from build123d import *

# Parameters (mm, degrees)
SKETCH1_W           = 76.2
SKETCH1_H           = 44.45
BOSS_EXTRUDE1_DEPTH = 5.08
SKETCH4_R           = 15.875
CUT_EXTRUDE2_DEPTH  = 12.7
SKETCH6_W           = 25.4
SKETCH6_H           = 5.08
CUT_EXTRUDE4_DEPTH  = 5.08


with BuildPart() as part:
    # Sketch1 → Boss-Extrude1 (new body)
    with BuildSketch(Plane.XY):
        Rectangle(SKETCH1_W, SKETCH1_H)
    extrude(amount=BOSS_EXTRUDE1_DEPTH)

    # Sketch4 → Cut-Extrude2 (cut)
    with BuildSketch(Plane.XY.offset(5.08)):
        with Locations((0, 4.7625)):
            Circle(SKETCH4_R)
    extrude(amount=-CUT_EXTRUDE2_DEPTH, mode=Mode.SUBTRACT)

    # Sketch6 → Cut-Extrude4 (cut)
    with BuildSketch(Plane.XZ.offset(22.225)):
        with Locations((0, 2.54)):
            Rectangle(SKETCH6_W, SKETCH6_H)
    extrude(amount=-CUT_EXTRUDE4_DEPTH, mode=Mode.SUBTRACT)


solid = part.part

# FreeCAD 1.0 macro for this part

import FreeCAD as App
import Part
import Sketcher

V = App.Vector
Q = App.Units.Quantity

doc = App.newDocument("Part")
params = doc.addObject("Spreadsheet::Sheet", "Params")
for row, (alias, value) in enumerate([
    ("sketch1_width", "3 in"),
    ("sketch1_height", "1.75 in"),
    ("pad1_length", "0.2 in"),
    ("sketch2_diameter", "1.25 in"),
    ("pocket1_length", "0.5 in"),
    ("sketch3_width", "1 in"),
    ("sketch3_height", "0.2 in"),
    ("pocket2_length", "0.2 in"),
], start=1):
    params.set(f"A{row}", alias)
    params.set(f"B{row}", "=" + value)
    params.setAlias(f"B{row}", alias)

body = doc.addObject("PartDesign::Body", "Body")

# Sketch on XY plane
sketch1 = body.newObject("Sketcher::SketchObject", "Sketch")
sketch1.AttachmentSupport = (doc.getObject("XY_Plane"), [""])
sketch1.MapMode = "FlatFace"
sketch1.addGeometry([
    Part.LineSegment(V(-38, 22, 0), V(-38, -22, 0)),
    Part.LineSegment(V(-38, -22, 0), V(38, -22, 0)),
    Part.LineSegment(V(38, -22, 0), V(38, 22, 0)),
    Part.LineSegment(V(38, 22, 0), V(-38, 22, 0)),
], False)
sketch1.addConstraint([
    Sketcher.Constraint("Coincident", 0, 2, 1, 1),
    Sketcher.Constraint("Coincident", 1, 2, 2, 1),
    Sketcher.Constraint("Coincident", 2, 2, 3, 1),
    Sketcher.Constraint("Coincident", 3, 2, 0, 1),
    Sketcher.Constraint("Vertical", 0),
    Sketcher.Constraint("Horizontal", 1),
    Sketcher.Constraint("Vertical", 2),
    Sketcher.Constraint("Horizontal", 3),
    Sketcher.Constraint("Symmetric", 0, 2, 2, 2, -1, 1),
    Sketcher.Constraint("DistanceX", 1, 1, 1, 2, Q("3 in")),
    Sketcher.Constraint("DistanceY", 0, 2, 0, 1, Q("1.75 in")),
])
sketch1.setExpression("Constraints[9]", "Params.sketch1_width")
sketch1.setExpression("Constraints[10]", "Params.sketch1_height")
pad1 = body.newObject("PartDesign::Pad", "Pad")
pad1.Profile = sketch1
pad1.setExpression("Length", "Params.pad1_length")

# Sketch on XY plane
sketch2 = body.newObject("Sketcher::SketchObject", "Sketch001")
sketch2.AttachmentSupport = (doc.getObject("XY_Plane"), [""])
sketch2.MapMode = "FlatFace"
sketch2.AttachmentOffset = App.Placement(V(0, 0, 0.2 * 25.4), App.Rotation())
sketch2.addGeometry(Part.Circle(V(0, 5, 0), V(0, 0, 1), 16), False)
sketch2.addConstraint([
    Sketcher.Constraint("PointOnObject", 0, 3, -2),
    Sketcher.Constraint("Diameter", 0, Q("1.25 in")),
    Sketcher.Constraint("DistanceY", -1, 1, 0, 3, Q("0.1875 in")),
])
sketch2.setExpression("Constraints[1]", "Params.sketch2_diameter")
pocket1 = body.newObject("PartDesign::Pocket", "Pocket")
pocket1.Profile = sketch2
pocket1.setExpression("Length", "Params.pocket1_length")

# Sketch on XZ plane
sketch3 = body.newObject("Sketcher::SketchObject", "Sketch002")
sketch3.AttachmentSupport = (doc.getObject("XZ_Plane"), [""])
sketch3.MapMode = "FlatFace"
sketch3.AttachmentOffset = App.Placement(V(0, 0, 0.875 * 25.4), App.Rotation())
sketch3.addGeometry([
    Part.LineSegment(V(-13, 5, 0), V(-13, 0, 0)),
    Part.LineSegment(V(-13, 0, 0), V(13, 0, 0)),
    Part.LineSegment(V(13, 0, 0), V(13, 5, 0)),
    Part.LineSegment(V(13, 5, 0), V(-13, 5, 0)),
], False)
sketch3.addConstraint([
    Sketcher.Constraint("Coincident", 0, 2, 1, 1),
    Sketcher.Constraint("Coincident", 1, 2, 2, 1),
    Sketcher.Constraint("Coincident", 2, 2, 3, 1),
    Sketcher.Constraint("Coincident", 3, 2, 0, 1),
    Sketcher.Constraint("Vertical", 0),
    Sketcher.Constraint("Horizontal", 1),
    Sketcher.Constraint("Vertical", 2),
    Sketcher.Constraint("Horizontal", 3),
    Sketcher.Constraint("Symmetric", 0, 2, 1, 2, -1, 1),
    Sketcher.Constraint("DistanceX", 1, 1, 1, 2, Q("1 in")),
    Sketcher.Constraint("DistanceY", 0, 2, 0, 1, Q("0.2 in")),
])
sketch3.setExpression("Constraints[9]", "Params.sketch3_width")
sketch3.setExpression("Constraints[10]", "Params.sketch3_height")
pocket2 = body.newObject("PartDesign::Pocket", "Pocket001")
pocket2.Profile = sketch3
pocket2.setExpression("Length", "Params.pocket2_length")

doc.recompute()
